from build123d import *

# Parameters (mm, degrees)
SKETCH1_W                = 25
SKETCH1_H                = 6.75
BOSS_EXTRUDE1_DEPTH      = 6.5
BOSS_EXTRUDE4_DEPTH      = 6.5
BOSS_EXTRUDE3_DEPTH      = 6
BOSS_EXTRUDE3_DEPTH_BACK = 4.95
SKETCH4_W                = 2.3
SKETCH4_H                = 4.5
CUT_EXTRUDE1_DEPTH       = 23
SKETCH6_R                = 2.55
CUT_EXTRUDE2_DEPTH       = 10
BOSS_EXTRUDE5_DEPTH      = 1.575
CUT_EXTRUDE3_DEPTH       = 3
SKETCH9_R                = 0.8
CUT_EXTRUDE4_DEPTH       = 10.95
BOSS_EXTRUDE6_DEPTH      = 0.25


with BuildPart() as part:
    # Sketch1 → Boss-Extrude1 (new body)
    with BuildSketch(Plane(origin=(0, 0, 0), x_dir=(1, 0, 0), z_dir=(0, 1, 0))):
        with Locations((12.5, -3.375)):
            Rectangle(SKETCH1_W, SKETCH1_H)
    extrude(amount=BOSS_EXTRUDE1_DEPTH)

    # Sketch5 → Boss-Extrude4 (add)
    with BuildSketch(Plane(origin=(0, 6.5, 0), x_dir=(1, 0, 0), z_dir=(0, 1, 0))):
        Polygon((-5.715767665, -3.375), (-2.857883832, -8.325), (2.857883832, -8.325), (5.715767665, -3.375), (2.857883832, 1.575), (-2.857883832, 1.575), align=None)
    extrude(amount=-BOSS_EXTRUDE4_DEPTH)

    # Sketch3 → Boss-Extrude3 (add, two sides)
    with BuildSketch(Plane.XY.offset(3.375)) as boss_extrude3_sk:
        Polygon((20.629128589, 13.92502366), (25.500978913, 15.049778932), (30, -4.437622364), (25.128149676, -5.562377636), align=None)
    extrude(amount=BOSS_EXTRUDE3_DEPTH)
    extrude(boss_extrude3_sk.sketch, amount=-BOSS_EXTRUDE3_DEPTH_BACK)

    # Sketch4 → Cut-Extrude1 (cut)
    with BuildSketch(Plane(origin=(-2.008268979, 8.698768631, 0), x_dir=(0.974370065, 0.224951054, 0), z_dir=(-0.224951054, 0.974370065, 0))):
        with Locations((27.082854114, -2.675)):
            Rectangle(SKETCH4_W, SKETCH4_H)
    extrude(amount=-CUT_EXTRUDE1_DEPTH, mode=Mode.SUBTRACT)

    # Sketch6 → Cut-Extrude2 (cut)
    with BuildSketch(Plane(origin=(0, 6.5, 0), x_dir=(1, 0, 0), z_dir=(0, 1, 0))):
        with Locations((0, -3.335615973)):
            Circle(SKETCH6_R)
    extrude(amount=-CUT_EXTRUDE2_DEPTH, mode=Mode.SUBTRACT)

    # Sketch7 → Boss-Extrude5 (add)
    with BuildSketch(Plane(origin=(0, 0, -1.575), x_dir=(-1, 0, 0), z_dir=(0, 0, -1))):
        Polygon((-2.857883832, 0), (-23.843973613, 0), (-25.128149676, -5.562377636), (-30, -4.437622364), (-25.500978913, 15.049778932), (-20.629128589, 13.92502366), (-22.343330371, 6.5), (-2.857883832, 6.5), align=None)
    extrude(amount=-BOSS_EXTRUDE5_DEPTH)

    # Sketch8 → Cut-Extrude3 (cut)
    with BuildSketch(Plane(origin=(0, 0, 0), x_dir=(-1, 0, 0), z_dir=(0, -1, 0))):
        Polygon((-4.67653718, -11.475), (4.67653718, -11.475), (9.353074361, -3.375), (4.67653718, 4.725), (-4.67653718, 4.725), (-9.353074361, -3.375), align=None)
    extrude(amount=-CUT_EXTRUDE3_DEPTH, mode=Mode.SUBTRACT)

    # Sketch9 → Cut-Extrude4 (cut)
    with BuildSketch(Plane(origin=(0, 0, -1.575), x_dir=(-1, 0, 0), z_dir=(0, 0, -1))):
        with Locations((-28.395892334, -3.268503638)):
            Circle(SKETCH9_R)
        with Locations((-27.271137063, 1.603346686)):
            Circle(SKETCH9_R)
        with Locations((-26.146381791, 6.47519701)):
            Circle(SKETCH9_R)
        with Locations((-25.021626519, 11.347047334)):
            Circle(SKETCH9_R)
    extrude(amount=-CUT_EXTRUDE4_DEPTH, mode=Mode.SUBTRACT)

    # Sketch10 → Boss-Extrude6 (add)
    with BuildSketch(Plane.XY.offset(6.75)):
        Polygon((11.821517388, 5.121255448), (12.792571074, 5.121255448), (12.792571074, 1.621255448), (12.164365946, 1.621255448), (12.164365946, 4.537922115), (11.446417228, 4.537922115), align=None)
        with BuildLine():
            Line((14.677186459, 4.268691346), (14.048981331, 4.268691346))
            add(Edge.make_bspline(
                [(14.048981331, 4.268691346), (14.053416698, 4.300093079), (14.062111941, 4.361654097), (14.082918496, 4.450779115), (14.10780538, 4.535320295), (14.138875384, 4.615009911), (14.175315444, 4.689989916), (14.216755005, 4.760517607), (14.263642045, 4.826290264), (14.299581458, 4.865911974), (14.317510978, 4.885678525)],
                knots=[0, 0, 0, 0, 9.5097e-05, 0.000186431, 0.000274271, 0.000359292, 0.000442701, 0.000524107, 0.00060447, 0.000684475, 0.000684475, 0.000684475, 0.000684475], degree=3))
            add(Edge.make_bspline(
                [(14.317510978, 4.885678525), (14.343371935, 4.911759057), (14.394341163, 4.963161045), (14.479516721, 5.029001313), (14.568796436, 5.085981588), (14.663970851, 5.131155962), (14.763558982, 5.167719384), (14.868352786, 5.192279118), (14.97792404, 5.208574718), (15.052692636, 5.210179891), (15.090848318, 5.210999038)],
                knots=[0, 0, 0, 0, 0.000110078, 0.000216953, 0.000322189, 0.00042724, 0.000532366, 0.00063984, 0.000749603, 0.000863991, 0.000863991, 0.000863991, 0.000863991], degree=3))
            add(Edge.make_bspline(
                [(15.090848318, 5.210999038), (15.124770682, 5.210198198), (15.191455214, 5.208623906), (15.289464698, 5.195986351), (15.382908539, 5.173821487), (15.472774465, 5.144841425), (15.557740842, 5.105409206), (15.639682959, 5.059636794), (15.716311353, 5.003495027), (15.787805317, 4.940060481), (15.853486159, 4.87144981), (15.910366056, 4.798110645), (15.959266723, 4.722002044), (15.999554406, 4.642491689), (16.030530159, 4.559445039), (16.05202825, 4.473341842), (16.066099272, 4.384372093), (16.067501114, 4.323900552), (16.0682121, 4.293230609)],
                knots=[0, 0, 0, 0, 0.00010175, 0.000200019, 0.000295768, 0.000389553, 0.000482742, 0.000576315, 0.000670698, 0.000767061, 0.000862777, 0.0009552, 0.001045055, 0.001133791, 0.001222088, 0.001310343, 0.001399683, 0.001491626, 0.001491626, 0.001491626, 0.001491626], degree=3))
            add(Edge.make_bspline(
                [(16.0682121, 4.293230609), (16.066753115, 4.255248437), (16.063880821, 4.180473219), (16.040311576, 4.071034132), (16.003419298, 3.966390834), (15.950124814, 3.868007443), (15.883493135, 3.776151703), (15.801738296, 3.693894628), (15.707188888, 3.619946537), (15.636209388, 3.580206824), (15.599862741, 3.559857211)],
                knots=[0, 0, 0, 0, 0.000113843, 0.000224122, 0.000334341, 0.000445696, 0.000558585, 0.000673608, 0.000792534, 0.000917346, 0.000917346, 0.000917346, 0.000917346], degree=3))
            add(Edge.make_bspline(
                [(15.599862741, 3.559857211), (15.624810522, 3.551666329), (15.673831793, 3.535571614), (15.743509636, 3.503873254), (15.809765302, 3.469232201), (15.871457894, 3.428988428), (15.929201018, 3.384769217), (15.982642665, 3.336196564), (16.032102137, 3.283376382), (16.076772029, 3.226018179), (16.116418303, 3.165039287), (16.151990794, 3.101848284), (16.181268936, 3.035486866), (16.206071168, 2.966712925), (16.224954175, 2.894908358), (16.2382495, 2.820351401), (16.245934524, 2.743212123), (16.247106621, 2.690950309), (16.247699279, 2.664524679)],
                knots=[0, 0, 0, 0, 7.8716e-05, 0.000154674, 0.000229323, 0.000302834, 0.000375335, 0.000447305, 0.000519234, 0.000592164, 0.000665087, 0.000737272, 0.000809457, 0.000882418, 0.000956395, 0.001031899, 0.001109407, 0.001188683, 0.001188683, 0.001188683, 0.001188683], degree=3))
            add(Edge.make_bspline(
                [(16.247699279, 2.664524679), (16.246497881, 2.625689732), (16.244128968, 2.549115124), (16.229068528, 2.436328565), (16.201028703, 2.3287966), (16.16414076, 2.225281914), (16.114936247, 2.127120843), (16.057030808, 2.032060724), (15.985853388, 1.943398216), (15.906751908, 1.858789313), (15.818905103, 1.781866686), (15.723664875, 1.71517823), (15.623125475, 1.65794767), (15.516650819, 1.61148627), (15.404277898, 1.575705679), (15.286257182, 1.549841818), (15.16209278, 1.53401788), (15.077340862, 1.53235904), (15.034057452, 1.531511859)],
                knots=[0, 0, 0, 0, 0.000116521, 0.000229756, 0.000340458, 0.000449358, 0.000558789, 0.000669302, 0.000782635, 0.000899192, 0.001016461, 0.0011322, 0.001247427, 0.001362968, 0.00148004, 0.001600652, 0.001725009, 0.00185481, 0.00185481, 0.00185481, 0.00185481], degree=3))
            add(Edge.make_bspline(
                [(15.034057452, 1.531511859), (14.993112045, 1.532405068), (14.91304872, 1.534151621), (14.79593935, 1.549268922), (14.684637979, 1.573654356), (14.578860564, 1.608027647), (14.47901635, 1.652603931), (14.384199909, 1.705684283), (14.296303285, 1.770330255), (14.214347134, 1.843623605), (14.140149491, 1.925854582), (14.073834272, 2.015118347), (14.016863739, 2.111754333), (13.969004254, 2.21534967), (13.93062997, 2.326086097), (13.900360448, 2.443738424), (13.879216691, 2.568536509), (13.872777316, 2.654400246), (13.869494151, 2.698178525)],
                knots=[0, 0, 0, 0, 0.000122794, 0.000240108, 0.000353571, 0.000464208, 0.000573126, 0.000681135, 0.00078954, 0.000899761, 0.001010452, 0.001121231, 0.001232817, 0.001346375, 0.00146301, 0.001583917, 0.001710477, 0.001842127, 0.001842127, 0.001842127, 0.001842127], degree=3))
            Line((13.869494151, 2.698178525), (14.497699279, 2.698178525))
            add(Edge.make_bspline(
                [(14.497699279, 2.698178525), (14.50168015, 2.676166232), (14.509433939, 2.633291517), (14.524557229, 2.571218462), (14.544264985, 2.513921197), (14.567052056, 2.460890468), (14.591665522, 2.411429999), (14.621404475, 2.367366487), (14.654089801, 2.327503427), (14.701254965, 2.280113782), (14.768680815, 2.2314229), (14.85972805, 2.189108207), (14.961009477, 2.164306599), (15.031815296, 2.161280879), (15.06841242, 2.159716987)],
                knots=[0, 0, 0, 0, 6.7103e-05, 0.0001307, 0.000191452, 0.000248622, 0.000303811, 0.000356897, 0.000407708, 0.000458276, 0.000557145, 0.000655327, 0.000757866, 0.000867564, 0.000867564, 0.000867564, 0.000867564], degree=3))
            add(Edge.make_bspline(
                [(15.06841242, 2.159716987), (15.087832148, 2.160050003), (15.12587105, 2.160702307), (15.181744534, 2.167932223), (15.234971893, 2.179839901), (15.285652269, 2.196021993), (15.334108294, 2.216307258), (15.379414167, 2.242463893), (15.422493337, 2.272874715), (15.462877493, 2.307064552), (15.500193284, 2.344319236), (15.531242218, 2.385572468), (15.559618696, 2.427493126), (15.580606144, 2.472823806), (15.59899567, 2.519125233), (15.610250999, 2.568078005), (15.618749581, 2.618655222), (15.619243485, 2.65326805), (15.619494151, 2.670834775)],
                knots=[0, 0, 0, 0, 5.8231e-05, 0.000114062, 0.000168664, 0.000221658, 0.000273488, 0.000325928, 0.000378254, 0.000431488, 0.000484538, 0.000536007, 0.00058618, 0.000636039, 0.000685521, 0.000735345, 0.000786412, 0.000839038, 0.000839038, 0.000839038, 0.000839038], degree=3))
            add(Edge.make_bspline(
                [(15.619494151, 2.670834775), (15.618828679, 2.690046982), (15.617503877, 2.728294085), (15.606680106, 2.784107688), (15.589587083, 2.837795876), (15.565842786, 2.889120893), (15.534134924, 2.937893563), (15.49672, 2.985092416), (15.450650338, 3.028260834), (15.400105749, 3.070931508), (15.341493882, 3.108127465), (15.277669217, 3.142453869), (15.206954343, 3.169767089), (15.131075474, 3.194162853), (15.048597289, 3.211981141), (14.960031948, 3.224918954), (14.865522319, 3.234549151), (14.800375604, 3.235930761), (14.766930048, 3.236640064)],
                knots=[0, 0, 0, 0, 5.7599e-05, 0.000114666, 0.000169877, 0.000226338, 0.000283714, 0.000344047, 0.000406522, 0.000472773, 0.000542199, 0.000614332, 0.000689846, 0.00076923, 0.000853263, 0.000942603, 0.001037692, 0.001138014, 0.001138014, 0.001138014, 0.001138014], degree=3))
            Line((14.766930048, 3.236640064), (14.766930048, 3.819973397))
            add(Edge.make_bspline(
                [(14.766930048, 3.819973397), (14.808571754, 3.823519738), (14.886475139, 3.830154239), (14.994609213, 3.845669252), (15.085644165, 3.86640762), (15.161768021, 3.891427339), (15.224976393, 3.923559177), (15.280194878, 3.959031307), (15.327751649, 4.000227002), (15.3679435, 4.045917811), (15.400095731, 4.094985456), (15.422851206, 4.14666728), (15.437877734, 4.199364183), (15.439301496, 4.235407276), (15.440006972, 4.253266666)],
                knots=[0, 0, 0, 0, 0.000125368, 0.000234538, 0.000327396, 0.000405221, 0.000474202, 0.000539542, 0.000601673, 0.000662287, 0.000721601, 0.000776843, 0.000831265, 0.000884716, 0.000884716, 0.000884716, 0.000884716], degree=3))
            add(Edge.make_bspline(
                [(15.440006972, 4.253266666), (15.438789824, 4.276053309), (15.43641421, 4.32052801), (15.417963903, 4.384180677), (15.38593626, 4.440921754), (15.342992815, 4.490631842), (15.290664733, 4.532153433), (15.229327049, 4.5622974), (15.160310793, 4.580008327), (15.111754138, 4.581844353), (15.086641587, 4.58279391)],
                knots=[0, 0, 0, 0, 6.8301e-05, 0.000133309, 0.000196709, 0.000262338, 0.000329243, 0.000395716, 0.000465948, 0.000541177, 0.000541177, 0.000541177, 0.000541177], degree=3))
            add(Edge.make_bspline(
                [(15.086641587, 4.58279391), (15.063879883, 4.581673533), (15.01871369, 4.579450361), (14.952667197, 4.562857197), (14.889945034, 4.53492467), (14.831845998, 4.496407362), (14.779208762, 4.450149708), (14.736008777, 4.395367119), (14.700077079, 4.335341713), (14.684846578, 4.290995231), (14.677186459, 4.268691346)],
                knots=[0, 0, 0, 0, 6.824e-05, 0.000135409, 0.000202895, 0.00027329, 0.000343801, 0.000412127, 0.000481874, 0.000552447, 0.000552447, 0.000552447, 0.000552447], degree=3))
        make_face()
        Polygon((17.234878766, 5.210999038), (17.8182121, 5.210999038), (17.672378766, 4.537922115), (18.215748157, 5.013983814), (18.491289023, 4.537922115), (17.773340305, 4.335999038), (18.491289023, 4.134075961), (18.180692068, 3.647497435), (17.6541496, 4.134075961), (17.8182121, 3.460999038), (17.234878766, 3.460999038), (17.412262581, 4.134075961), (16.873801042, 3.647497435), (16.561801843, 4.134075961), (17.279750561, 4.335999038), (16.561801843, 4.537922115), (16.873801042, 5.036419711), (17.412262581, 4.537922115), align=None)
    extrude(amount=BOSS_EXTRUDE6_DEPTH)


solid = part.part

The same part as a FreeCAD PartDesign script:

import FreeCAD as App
import Part
import Sketcher
from FreeCAD import Vector
Q = App.Units.Quantity


def add_polygon(sketch, points):
    """Adds a closed chain of lines whose ends are joined by coincident constraints."""
    first, n = sketch.GeometryCount, len(points)
    for a, b in zip(points, points[1:] + points[:1]):
        sketch.addGeometry(Part.LineSegment(App.Vector(*a, 0), App.Vector(*b, 0)), False)
    for i in range(n):
        sketch.addConstraint(Sketcher.Constraint("Coincident", first + i, 2, first + (i + 1) % n, 1))

doc = App.newDocument("Part")
params = doc.addObject("Spreadsheet::Sheet", "Params")
for row, (alias, value) in enumerate([
    ("sketch1_width", "25 mm"),
    ("sketch1_height", "6.75 mm"),
    ("pad1_length", "6.5 mm"),
    ("pad2_length", "6.5 mm"),
    ("sketch3_length", "5 mm"),
    ("sketch3_length2", "20 mm"),
    ("pad3_length", "6 mm"),
    ("pad3_length2", "4.95 mm"),
    ("sketch4_width", "2.3 mm"),
    ("sketch4_height", "4.5 mm"),
    ("pocket1_length", "23 mm"),
    ("sketch5_diameter", "5.1 mm"),
    ("pocket2_length", "10 mm"),
    ("sketch6_length", "5 mm"),
    ("sketch6_length2", "20 mm"),
    ("sketch6_height", "6.5 mm"),
    ("pad4_length", "1.575 mm"),
    ("pocket3_length", "3 mm"),
    ("sketch8_diameter", "1.6 mm"),
    ("pocket4_length", "10.95 mm"),
    ("sketch9_height", "3.5 mm"),
    ("pad5_length", "0.25 mm"),
], start=1):
    params.set(f"A{row}", alias)
    params.set(f"B{row}", "=" + value)
    params.setAlias(f"B{row}", alias)

body = doc.addObject("PartDesign::Body", "Body")

# Sketch on XZ plane
sketch1 = doc.addObject("Sketcher::SketchObject", "Sketch")
body.addObject(sketch1)
sketch1.AttachmentSupport = (doc.XZ_Plane, [""])
sketch1.MapMode = "FlatFace"
add_polygon(sketch1, [(0, 0), (0, 7), (25, 7), (25, 0)])  # lines 0-3
sketch1.addConstraint([
    Sketcher.Constraint("Vertical", 0),
    Sketcher.Constraint("Horizontal", 1),
    Sketcher.Constraint("Vertical", 2),
    Sketcher.Constraint("Horizontal", 3),
    Sketcher.Constraint("Coincident", 3, 2, -1, 1),
    Sketcher.Constraint("DistanceX", 1, 1, 1, 2, Q("25 mm")),
    Sketcher.Constraint("DistanceY", 0, 1, 0, 2, Q("6.75 mm")),
])
sketch1.setExpression("Constraints[9]", "Params.sketch1_width")
sketch1.setExpression("Constraints[10]", "Params.sketch1_height")
pad1 = doc.addObject("PartDesign::Pad", "Pad")
body.addObject(pad1)
pad1.Profile = sketch1
pad1.setExpression("Length", "Params.pad1_length")
pad1.Reversed = True

# Sketch on XZ plane
sketch2 = doc.addObject("Sketcher::SketchObject", "Sketch001")
body.addObject(sketch2)
sketch2.AttachmentSupport = (doc.XZ_Plane, [""])
sketch2.MapMode = "FlatFace"
sketch2.AttachmentOffset = App.Placement(Vector(0, 0, -6.5), App.Rotation())
add_polygon(sketch2, [(-6, 3), (-3, 8), (3, 8), (6, 3), (3, -2), (-3, -2)])  # lines 0-5
sketch2.addConstraint([
    Sketcher.Constraint("Horizontal", 1),
    Sketcher.Constraint("Horizontal", 4),
    Sketcher.Constraint("Symmetric", 2, 2, 5, 2, -2),
    Sketcher.Constraint("Parallel", 0, 3),
    Sketcher.Constraint("Parallel", 2, 5),
    Sketcher.Constraint("Vertical", 1, 2, 3, 2),
    Sketcher.Constraint("Vertical", 0, 2, 4, 2),
    Sketcher.Constraint("Angle", 0, Q("60 deg")),
    Sketcher.Constraint("DistanceY", 3, 2, 1, 2, Q("9.9 mm")),
    Sketcher.Constraint("DistanceY", -1, 1, 0, 2, Q("8.325 mm")),
    Sketcher.Constraint("DistanceX", 1, 1, 1, 2, Q("5.715768 mm")),
])
pad2 = doc.addObject("PartDesign::Pad", "Pad001")
body.addObject(pad2)
pad2.Profile = sketch2
pad2.setExpression("Length", "Params.pad2_length")

# Sketch on XY plane
sketch3 = doc.addObject("Sketcher::SketchObject", "Sketch002")
body.addObject(sketch3)
sketch3.AttachmentSupport = (doc.XY_Plane, [""])
sketch3.MapMode = "FlatFace"
sketch3.AttachmentOffset = App.Placement(Vector(0, 0, 3.375), App.Rotation())
add_polygon(sketch3, [(26, 15), (21, 14), (25, -6), (30, -4)])  # lines 0-3
sketch3.addConstraint([
    Sketcher.Constraint("Perpendicular", 0, 1),
    Sketcher.Constraint("Perpendicular", 1, 2),
    Sketcher.Constraint("Perpendicular", 2, 3),
    Sketcher.Constraint("Angle", 0, Q("-167 deg")),
    Sketcher.Constraint("Distance", 0, Q("5 mm")),
    Sketcher.Constraint("Distance", 1, Q("20 mm")),
    Sketcher.Constraint("DistanceX", -1, 1, 2, 2, Q("30 mm")),
    Sketcher.Constraint("DistanceY", -1, 1, 3, 2, Q("15.049779 mm")),
])
sketch3.setExpression("Constraints[8]", "Params.sketch3_length")
sketch3.setExpression("Constraints[9]", "Params.sketch3_length2")
pad3 = doc.addObject("PartDesign::Pad", "Pad002")
body.addObject(pad3)
pad3.Profile = sketch3
pad3.Type = "TwoLengths"
pad3.setExpression("Length", "Params.pad3_length")
pad3.setExpression("Length2", "Params.pad3_length2")

# Sketch on an angled plane
sketch4 = doc.addObject("Sketcher::SketchObject", "Sketch003")
body.addObject(sketch4)
sketch4.Placement = App.Placement(Vector(-2.008269, 8.698769, 0), App.Rotation(Vector(0.974370065, 0.224951054, 0), Vector(0, 0, -1), Vector(-0.224951054, 0.974370065, 0), "ZXY"))
add_polygon(sketch4, [(25.9, -0.4), (25.9, -4.9), (28.2, -4.9), (28.2, -0.4)])  # lines 0-3
sketch4.addConstraint([
    Sketcher.Constraint("Vertical", 0),
    Sketcher.Constraint("Horizontal", 1),
    Sketcher.Constraint("Vertical", 2),
    Sketcher.Constraint("Horizontal", 3),
    Sketcher.Constraint("DistanceX", 1, 1, 1, 2, Q("2.3 mm")),
    Sketcher.Constraint("DistanceY", 0, 2, 0, 1, Q("4.5 mm")),
    Sketcher.Constraint("DistanceY", 0, 2, -1, 1, Q("4.925 mm")),
    Sketcher.Constraint("DistanceX", -1, 1, 0, 2, Q("25.932854 mm")),
])
sketch4.setExpression("Constraints[8]", "Params.sketch4_width")
sketch4.setExpression("Constraints[9]", "Params.sketch4_height")
pocket1 = doc.addObject("PartDesign::Pocket", "Pocket")
body.addObject(pocket1)
pocket1.Profile = sketch4
pocket1.setExpression("Length", "Params.pocket1_length")

# Sketch on XZ plane
sketch5 = doc.addObject("Sketcher::SketchObject", "Sketch004")
body.addObject(sketch5)
sketch5.AttachmentSupport = (doc.XZ_Plane, [""])
sketch5.MapMode = "FlatFace"
sketch5.AttachmentOffset = App.Placement(Vector(0, 0, -6.5), App.Rotation())
sketch5.addGeometry(Part.Circle(Vector(0, 3.3, 0), Vector(0, 0, 1), 2.5), False)
sketch5.addConstraint([
    Sketcher.Constraint("PointOnObject", 0, 3, -2),
    Sketcher.Constraint("Diameter", 0, Q("5.1 mm")),
    Sketcher.Constraint("DistanceY", -1, 1, 0, 3, Q("3.335616 mm")),
])
sketch5.setExpression("Constraints[1]", "Params.sketch5_diameter")
pocket2 = doc.addObject("PartDesign::Pocket", "Pocket001")
body.addObject(pocket2)
pocket2.Profile = sketch5
pocket2.setExpression("Length", "Params.pocket2_length")
pocket2.Reversed = True

# Sketch on XY plane
sketch6 = doc.addObject("Sketcher::SketchObject", "Sketch005")
body.addObject(sketch6)
sketch6.AttachmentSupport = (doc.XY_Plane, [""])
sketch6.MapMode = "FlatFace"
sketch6.AttachmentOffset = App.Placement(Vector(0, 0, -1.575), App.Rotation())
add_polygon(sketch6, [(24, 0), (3, 0), (3, 6), (22, 6), (21, 14), (26, 15), (30, -4), (25, -6)])  # lines 0-7
sketch6.addConstraint([
    Sketcher.Constraint("Horizontal", 0),
    Sketcher.Constraint("Vertical", 1),
    Sketcher.Constraint("Horizontal", 2),
    Sketcher.Constraint("PointOnObject", 0, 2, -1),
    Sketcher.Constraint("Perpendicular", 3, 4),
    Sketcher.Constraint("Perpendicular", 4, 5),
    Sketcher.Constraint("Perpendicular", 5, 6),
    Sketcher.Constraint("Perpendicular", 6, 7),
    Sketcher.Constraint("Equal", 4, 6),
    Sketcher.Constraint("Angle", 3, Q("103 deg")),
    Sketcher.Constraint("Distance", 4, Q("5 mm")),
    Sketcher.Constraint("Distance", 5, Q("20 mm")),
    Sketcher.Constraint("DistanceY", 1, 1, 1, 2, Q("6.5 mm")),
    Sketcher.Constraint("DistanceX", -1, 1, 5, 2, Q("30 mm")),
    Sketcher.Constraint("DistanceX", 0, 2, 0, 1, Q("20.98609 mm")),
    Sketcher.Constraint("DistanceX", 3, 2, 2, 2, Q("1.714202 mm")),
])
sketch6.setExpression("Constraints[18]", "Params.sketch6_length")
sketch6.setExpression("Constraints[19]", "Params.sketch6_length2")
sketch6.setExpression("Constraints[20]", "Params.sketch6_height")
pad4 = doc.addObject("PartDesign::Pad", "Pad003")
body.addObject(pad4)
pad4.Profile = sketch6
pad4.setExpression("Length", "Params.pad4_length")

# Sketch on XZ plane
sketch7 = doc.addObject("Sketcher::SketchObject", "Sketch006")
body.addObject(sketch7)
sketch7.AttachmentSupport = (doc.XZ_Plane, [""])
sketch7.MapMode = "FlatFace"
add_polygon(sketch7, [(5, 11), (-5, 11), (-9, 3), (-5, -5), (5, -5), (9, 3)])  # lines 0-5
sketch7.addConstraint([
    Sketcher.Constraint("Horizontal", 0),
    Sketcher.Constraint("Horizontal", 3),
    Sketcher.Constraint("Symmetric", 1, 2, 4, 2, -2),
    Sketcher.Constraint("Parallel", 1, 4),
    Sketcher.Constraint("Parallel", 2, 5),
    Sketcher.Constraint("Vertical", 0, 2, 2, 2),
    Sketcher.Constraint("Vertical", 3, 2, 5, 2),
    Sketcher.Constraint("Angle", 1, Q("-120 deg")),
    Sketcher.Constraint("DistanceY", 1, 2, 0, 2, Q("8.1 mm")),
    Sketcher.Constraint("DistanceY", -1, 1, 0, 2, Q("11.475 mm")),
    Sketcher.Constraint("DistanceX", 0, 2, 0, 1, Q("9.353074 mm")),
])
pocket3 = doc.addObject("PartDesign::Pocket", "Pocket002")
body.addObject(pocket3)
pocket3.Profile = sketch7
pocket3.setExpression("Length", "Params.pocket3_length")

# Sketch on XY plane
sketch8 = doc.addObject("Sketcher::SketchObject", "Sketch007")
body.addObject(sketch8)
sketch8.AttachmentSupport = (doc.XY_Plane, [""])
sketch8.MapMode = "FlatFace"
sketch8.AttachmentOffset = App.Placement(Vector(0, 0, -1.575), App.Rotation())
sketch8.addGeometry([
    Part.Circle(Vector(28.4, -3.3, 0), Vector(0, 0, 1), 0.8),
    Part.Circle(Vector(27.3, 1.6, 0), Vector(0, 0, 1), 0.8),
    Part.Circle(Vector(26.1, 6.5, 0), Vector(0, 0, 1), 0.8),
    Part.Circle(Vector(25, 11.3, 0), Vector(0, 0, 1), 0.8),
], False)
sketch8.addConstraint([
    Sketcher.Constraint("Equal", 0, 1),
    Sketcher.Constraint("Equal", 1, 2),
    Sketcher.Constraint("Equal", 2, 3),
    Sketcher.Constraint("Diameter", 0, Q("1.6 mm")),
    Sketcher.Constraint("DistanceY", 0, 3, 2, 3, Q("9.743701 mm")),
    Sketcher.Constraint("DistanceY", 1, 3, 3, 3, Q("9.743701 mm")),
    Sketcher.Constraint("DistanceX", -1, 1, 2, 3, Q("26.146382 mm")),
    Sketcher.Constraint("DistanceY", 0, 3, 1, 3, Q("4.87185 mm")),
    Sketcher.Constraint("DistanceX", 2, 3, 0, 3, Q("2.249511 mm")),
    Sketcher.Constraint("DistanceX", 3, 3, 1, 3, Q("2.249511 mm")),
    Sketcher.Constraint("DistanceY", 0, 3, -1, 1, Q("3.268504 mm")),
    Sketcher.Constraint("DistanceX", -1, 1, 1, 3, Q("27.271137 mm")),
])
sketch8.setExpression("Constraints[3]", "Params.sketch8_diameter")
pocket4 = doc.addObject("PartDesign::Pocket", "Pocket003")
body.addObject(pocket4)
pocket4.Profile = sketch8
pocket4.setExpression("Length", "Params.pocket4_length")
pocket4.Reversed = True

# Sketch on XY plane
sketch9 = doc.addObject("Sketcher::SketchObject", "Sketch008")
body.addObject(sketch9)
sketch9.AttachmentSupport = (doc.XY_Plane, [""])
sketch9.MapMode = "FlatFace"
sketch9.AttachmentOffset = App.Placement(Vector(0, 0, 6.75), App.Rotation())
add_polygon(sketch9, [(12.792571, 5.121255), (11.821517, 5.121255), (11.446417, 4.537922), (12.164366, 4.537922), (12.164366, 1.621255), (12.792571, 1.621255)])  # lines 0-5
sketch9.addGeometry(Part.LineSegment(Vector(14.048981, 4.268691, 0), Vector(14.677186, 4.268691, 0)), False)  # 6
sketch9.addGeometry(Part.BSplineCurve([Vector(15.086642, 4.582794, 0), Vector(15.06388, 4.581674, 0), Vector(15.018714, 4.57945, 0), Vector(14.952667, 4.562857, 0), Vector(14.889945, 4.534925, 0), Vector(14.831846, 4.496407, 0), Vector(14.779209, 4.45015, 0), Vector(14.736009, 4.395367, 0), Vector(14.700077, 4.335342, 0), Vector(14.684847, 4.290995, 0), Vector(14.677186, 4.268691, 0)], [4, 1, 1, 1, 1, 1, 1, 1, 4], [0, 0.00006824, 0.000135409, 0.000202895, 0.00027329, 0.000343801, 0.000412127, 0.000481874, 0.000552447], False, 3, [1, 1, 1, 1, 1, 1, 1, 1, 1, 1, 1], False), False)  # 7
sketch9.addGeometry(Part.BSplineCurve([Vector(15.440007, 4.253267, 0), Vector(15.43879, 4.276053, 0), Vector(15.436414, 4.320528, 0), Vector(15.417964, 4.384181, 0), Vector(15.385936, 4.440922, 0), Vector(15.342993, 4.490632, 0), Vector(15.290665, 4.532153, 0), Vector(15.229327, 4.562297, 0), Vector(15.160311, 4.580008, 0), Vector(15.111754, 4.581844, 0), Vector(15.086642, 4.582794, 0)], [4, 1, 1, 1, 1, 1, 1, 1, 4], [0, 0.000068301, 0.000133309, 0.000196709, 0.000262338, 0.000329243, 0.000395716, 0.000465948, 0.000541177], False, 3, [1, 1, 1, 1, 1, 1, 1, 1, 1, 1, 1], False), False)  # 8
sketch9.addGeometry(Part.BSplineCurve([Vector(14.76693, 3.819973, 0), Vector(14.808572, 3.82352, 0), Vector(14.886475, 3.830154, 0), Vector(14.994609, 3.845669, 0), Vector(15.085644, 3.866408, 0), Vector(15.161768, 3.891427, 0), Vector(15.224976, 3.923559, 0), Vector(15.280195, 3.959031, 0), Vector(15.327752, 4.000227, 0), Vector(15.367944, 4.045918, 0), Vector(15.400096, 4.094985, 0), Vector(15.422851, 4.146667, 0), Vector(15.437878, 4.199364, 0), Vector(15.439301, 4.235407, 0), Vector(15.440007, 4.253267, 0)], [4, 1, 1, 1, 1, 1, 1, 1, 1, 1, 1, 1, 4], [0, 0.000125368, 0.000234538, 0.000327396, 0.000405221, 0.000474202, 0.000539542, 0.000601673, 0.000662287, 0.000721601, 0.000776843, 0.000831265, 0.000884716], False, 3, [1, 1, 1, 1, 1, 1, 1, 1, 1, 1, 1, 1, 1, 1, 1], False), False)  # 9
sketch9.addGeometry(Part.LineSegment(Vector(14.76693, 3.819973, 0), Vector(14.76693, 3.23664, 0)), False)  # 10
sketch9.addGeometry(Part.BSplineCurve([Vector(15.619494, 2.670835, 0), Vector(15.618829, 2.690047, 0), Vector(15.617504, 2.728294, 0), Vector(15.60668, 2.784108, 0), Vector(15.589587, 2.837796, 0), Vector(15.565843, 2.889121, 0), Vector(15.534135, 2.937894, 0), Vector(15.49672, 2.985092, 0), Vector(15.45065, 3.028261, 0), Vector(15.400106, 3.070932, 0), Vector(15.341494, 3.108127, 0), Vector(15.277669, 3.142454, 0), Vector(15.206954, 3.169767, 0), Vector(15.131075, 3.194163, 0), Vector(15.048597, 3.211981, 0), Vector(14.960032, 3.224919, 0), Vector(14.865522, 3.234549, 0), Vector(14.800376, 3.235931, 0), Vector(14.76693, 3.23664, 0)], [4, 1, 1, 1, 1, 1, 1, 1, 1, 1, 1, 1, 1, 1, 1, 1, 4], [0, 0.000057599, 0.000114666, 0.000169877, 0.000226338, 0.000283714, 0.000344047, 0.000406522, 0.000472773, 0.000542199, 0.000614332, 0.000689846, 0.00076923, 0.000853263, 0.000942603, 0.001037692, 0.001138014], False, 3, [1, 1, 1, 1, 1, 1, 1, 1, 1, 1, 1, 1, 1, 1, 1, 1, 1, 1, 1], False), False)  # 11
sketch9.addGeometry(Part.BSplineCurve([Vector(15.068412, 2.159717, 0), Vector(15.087832, 2.16005, 0), Vector(15.125871, 2.160702, 0), Vector(15.181745, 2.167932, 0), Vector(15.234972, 2.17984, 0), Vector(15.285652, 2.196022, 0), Vector(15.334108, 2.216307, 0), Vector(15.379414, 2.242464, 0), Vector(15.422493, 2.272875, 0), Vector(15.462877, 2.307065, 0), Vector(15.500193, 2.344319, 0), Vector(15.531242, 2.385572, 0), Vector(15.559619, 2.427493, 0), Vector(15.580606, 2.472824, 0), Vector(15.598996, 2.519125, 0), Vector(15.610251, 2.568078, 0), Vector(15.61875, 2.618655, 0), Vector(15.619243, 2.653268, 0), Vector(15.619494, 2.670835, 0)], [4, 1, 1, 1, 1, 1, 1, 1, 1, 1, 1, 1, 1, 1, 1, 1, 4], [0, 0.000058231, 0.000114062, 0.000168664, 0.000221658, 0.000273488, 0.000325928, 0.000378254, 0.000431488, 0.000484538, 0.000536007, 0.00058618, 0.000636039, 0.000685521, 0.000735345, 0.000786412, 0.000839038], False, 3, [1, 1, 1, 1, 1, 1, 1, 1, 1, 1, 1, 1, 1, 1, 1, 1, 1, 1, 1], False), False)  # 12
sketch9.addGeometry(Part.BSplineCurve([Vector(14.497699, 2.698179, 0), Vector(14.50168, 2.676166, 0), Vector(14.509434, 2.633292, 0), Vector(14.524557, 2.571218, 0), Vector(14.544265, 2.513921, 0), Vector(14.567052, 2.46089, 0), Vector(14.591666, 2.41143, 0), Vector(14.621404, 2.367366, 0), Vector(14.65409, 2.327503, 0), Vector(14.701255, 2.280114, 0), Vector(14.768681, 2.231423, 0), Vector(14.859728, 2.189108, 0), Vector(14.961009, 2.164307, 0), Vector(15.031815, 2.161281, 0), Vector(15.068412, 2.159717, 0)], [4, 1, 1, 1, 1, 1, 1, 1, 1, 1, 1, 1, 4], [0, 0.000067103, 0.0001307, 0.000191452, 0.000248622, 0.000303811, 0.000356897, 0.000407708, 0.000458276, 0.000557145, 0.000655327, 0.000757866, 0.000867564], False, 3, [1, 1, 1, 1, 1, 1, 1, 1, 1, 1, 1, 1, 1, 1, 1], False), False)  # 13
sketch9.addGeometry(Part.LineSegment(Vector(14.497699, 2.698179, 0), Vector(13.869494, 2.698179, 0)), False)  # 14
sketch9.addGeometry(Part.BSplineCurve([Vector(15.034057, 1.531512, 0), Vector(14.993112, 1.532405, 0), Vector(14.913049, 1.534152, 0), Vector(14.795939, 1.549269, 0), Vector(14.684638, 1.573654, 0), Vector(14.578861, 1.608028, 0), Vector(14.479016, 1.652604, 0), Vector(14.3842, 1.705684, 0), Vector(14.296303, 1.77033, 0), Vector(14.214347, 1.843624, 0), Vector(14.140149, 1.925855, 0), Vector(14.073834, 2.015118, 0), Vector(14.016864, 2.111754, 0), Vector(13.969004, 2.21535, 0), Vector(13.93063, 2.326086, 0), Vector(13.90036, 2.443738, 0), Vector(13.879217, 2.568537, 0), Vector(13.872777, 2.6544, 0), Vector(13.869494, 2.698179, 0)], [4, 1, 1, 1, 1, 1, 1, 1, 1, 1, 1, 1, 1, 1, 1, 1, 4], [0, 0.000122794, 0.000240108, 0.000353571, 0.000464208, 0.000573126, 0.000681135, 0.00078954, 0.000899761, 0.001010452, 0.001121231, 0.001232817, 0.001346375, 0.00146301, 0.001583917, 0.001710477, 0.001842127], False, 3, [1, 1, 1, 1, 1, 1, 1, 1, 1, 1, 1, 1, 1, 1, 1, 1, 1, 1, 1], False), False)  # 15
sketch9.addGeometry(Part.BSplineCurve([Vector(16.247699, 2.664525, 0), Vector(16.246498, 2.62569, 0), Vector(16.244129, 2.549115, 0), Vector(16.229069, 2.436329, 0), Vector(16.201029, 2.328797, 0), Vector(16.164141, 2.225282, 0), Vector(16.114936, 2.127121, 0), Vector(16.057031, 2.032061, 0), Vector(15.985853, 1.943398, 0), Vector(15.906752, 1.858789, 0), Vector(15.818905, 1.781867, 0), Vector(15.723665, 1.715178, 0), Vector(15.623125, 1.657948, 0), Vector(15.516651, 1.611486, 0), Vector(15.404278, 1.575706, 0), Vector(15.286257, 1.549842, 0), Vector(15.162093, 1.534018, 0), Vector(15.077341, 1.532359, 0), Vector(15.034057, 1.531512, 0)], [4, 1, 1, 1, 1, 1, 1, 1, 1, 1, 1, 1, 1, 1, 1, 1, 4], [0, 0.000116521, 0.000229756, 0.000340458, 0.000449358, 0.000558789, 0.000669302, 0.000782635, 0.000899192, 0.001016461, 0.0011322, 0.001247427, 0.001362968, 0.00148004, 0.001600652, 0.001725009, 0.00185481], False, 3, [1, 1, 1, 1, 1, 1, 1, 1, 1, 1, 1, 1, 1, 1, 1, 1, 1, 1, 1], False), False)  # 16
sketch9.addGeometry(Part.BSplineCurve([Vector(15.599863, 3.559857, 0), Vector(15.624811, 3.551666, 0), Vector(15.673832, 3.535572, 0), Vector(15.74351, 3.503873, 0), Vector(15.809765, 3.469232, 0), Vector(15.871458, 3.428988, 0), Vector(15.929201, 3.384769, 0), Vector(15.982643, 3.336197, 0), Vector(16.032102, 3.283376, 0), Vector(16.076772, 3.226018, 0), Vector(16.116418, 3.165039, 0), Vector(16.151991, 3.101848, 0), Vector(16.181269, 3.035487, 0), Vector(16.206071, 2.966713, 0), Vector(16.224954, 2.894908, 0), Vector(16.238249, 2.820351, 0), Vector(16.245935, 2.743212, 0), Vector(16.247107, 2.69095, 0), Vector(16.247699, 2.664525, 0)], [4, 1, 1, 1, 1, 1, 1, 1, 1, 1, 1, 1, 1, 1, 1, 1, 4], [0, 0.000078716, 0.000154674, 0.000229323, 0.000302834, 0.000375335, 0.000447305, 0.000519234, 0.000592164, 0.000665087, 0.000737272, 0.000809457, 0.000882418, 0.000956395, 0.001031899, 0.001109407, 0.001188683], False, 3, [1, 1, 1, 1, 1, 1, 1, 1, 1, 1, 1, 1, 1, 1, 1, 1, 1, 1, 1], False), False)  # 17
sketch9.addGeometry(Part.BSplineCurve([Vector(16.068212, 4.293231, 0), Vector(16.066753, 4.255248, 0), Vector(16.063881, 4.180473, 0), Vector(16.040312, 4.071034, 0), Vector(16.003419, 3.966391, 0), Vector(15.950125, 3.868007, 0), Vector(15.883493, 3.776152, 0), Vector(15.801738, 3.693895, 0), Vector(15.707189, 3.619947, 0), Vector(15.636209, 3.580207, 0), Vector(15.599863, 3.559857, 0)], [4, 1, 1, 1, 1, 1, 1, 1, 4], [0, 0.000113843, 0.000224122, 0.000334341, 0.000445696, 0.000558585, 0.000673608, 0.000792534, 0.000917346], False, 3, [1, 1, 1, 1, 1, 1, 1, 1, 1, 1, 1], False), False)  # 18
sketch9.addGeometry(Part.BSplineCurve([Vector(15.090848, 5.210999, 0), Vector(15.124771, 5.210198, 0), Vector(15.191455, 5.208624, 0), Vector(15.289465, 5.195986, 0), Vector(15.382909, 5.173821, 0), Vector(15.472774, 5.144841, 0), Vector(15.557741, 5.105409, 0), Vector(15.639683, 5.059637, 0), Vector(15.716311, 5.003495, 0), Vector(15.787805, 4.94006, 0), Vector(15.853486, 4.87145, 0), Vector(15.910366, 4.798111, 0), Vector(15.959267, 4.722002, 0), Vector(15.999554, 4.642492, 0), Vector(16.03053, 4.559445, 0), Vector(16.052028, 4.473342, 0), Vector(16.066099, 4.384372, 0), Vector(16.067501, 4.323901, 0), Vector(16.068212, 4.293231, 0)], [4, 1, 1, 1, 1, 1, 1, 1, 1, 1, 1, 1, 1, 1, 1, 1, 4], [0, 0.00010175, 0.000200019, 0.000295768, 0.000389553, 0.000482742, 0.000576315, 0.000670698, 0.000767061, 0.000862777, 0.0009552, 0.001045055, 0.001133791, 0.001222088, 0.001310343, 0.001399683, 0.001491626], False, 3, [1, 1, 1, 1, 1, 1, 1, 1, 1, 1, 1, 1, 1, 1, 1, 1, 1, 1, 1], False), False)  # 19
sketch9.addGeometry(Part.BSplineCurve([Vector(14.317511, 4.885679, 0), Vector(14.343372, 4.911759, 0), Vector(14.394341, 4.963161, 0), Vector(14.479517, 5.029001, 0), Vector(14.568796, 5.085982, 0), Vector(14.663971, 5.131156, 0), Vector(14.763559, 5.167719, 0), Vector(14.868353, 5.192279, 0), Vector(14.977924, 5.208575, 0), Vector(15.052693, 5.21018, 0), Vector(15.090848, 5.210999, 0)], [4, 1, 1, 1, 1, 1, 1, 1, 4], [0, 0.000110078, 0.000216953, 0.000322189, 0.00042724, 0.000532366, 0.00063984, 0.000749603, 0.000863991], False, 3, [1, 1, 1, 1, 1, 1, 1, 1, 1, 1, 1], False), False)  # 20
sketch9.addGeometry(Part.BSplineCurve([Vector(14.048981, 4.268691, 0), Vector(14.053417, 4.300093, 0), Vector(14.062112, 4.361654, 0), Vector(14.082918, 4.450779, 0), Vector(14.107805, 4.53532, 0), Vector(14.138875, 4.61501, 0), Vector(14.175315, 4.68999, 0), Vector(14.216755, 4.760518, 0), Vector(14.263642, 4.82629, 0), Vector(14.299581, 4.865912, 0), Vector(14.317511, 4.885679, 0)], [4, 1, 1, 1, 1, 1, 1, 1, 4], [0, 0.000095097, 0.000186431, 0.000274271, 0.000359292, 0.000442701, 0.000524107, 0.00060447, 0.000684475], False, 3, [1, 1, 1, 1, 1, 1, 1, 1, 1, 1, 1], False), False)  # 21
add_polygon(sketch9, [(17.818212, 5.210999), (17.234879, 5.210999), (17.412263, 4.537922), (16.873801, 5.03642), (16.561802, 4.537922), (17.279751, 4.335999), (16.561802, 4.134076), (16.873801, 3.647497), (17.412263, 4.134076), (17.234879, 3.460999), (17.818212, 3.460999), (17.65415, 4.134076), (18.180692, 3.647497), (18.491289, 4.134076), (17.77334, 4.335999), (18.491289, 4.537922), (18.215748, 5.013984), (17.672379, 4.537922)])  # lines 22-39
sketch9.addConstraint([
    Sketcher.Constraint("Block", 7),
    Sketcher.Constraint("Block", 8),
    Sketcher.Constraint("Block", 9),
    Sketcher.Constraint("Block", 11),
    Sketcher.Constraint("Block", 12),
    Sketcher.Constraint("Block", 13),
    Sketcher.Constraint("Block", 15),
    Sketcher.Constraint("Block", 16),
    Sketcher.Constraint("Block", 17),
    Sketcher.Constraint("Block", 18),
    Sketcher.Constraint("Block", 19),
    Sketcher.Constraint("Block", 20),
    Sketcher.Constraint("Block", 21),
    Sketcher.Constraint("Coincident", 6, 2, 7, 2),
    Sketcher.Constraint("Coincident", 9, 1, 10, 1),
    Sketcher.Constraint("Coincident", 10, 2, 11, 2),
    Sketcher.Constraint("Coincident", 13, 1, 14, 1),
    Sketcher.Constraint("Coincident", 14, 2, 15, 2),
    Sketcher.Constraint("Coincident", 21, 1, 6, 1),
    Sketcher.Constraint("Horizontal", 0),
    Sketcher.Constraint("Horizontal", 2),
    Sketcher.Constraint("Vertical", 3),
    Sketcher.Constraint("Horizontal", 4),
    Sketcher.Constraint("Vertical", 5),
    Sketcher.Constraint("Horizontal", 22),
    Sketcher.Constraint("Horizontal", 31),
    Sketcher.Constraint("DistanceY", 5, 1, 5, 2, Q("3.5 mm")),
    Sketcher.Constraint("DistanceY", -1, 1, 22, 2, Q("5.210999 mm")),
    Sketcher.Constraint("DistanceY", -1, 1, 26, 2, Q("4.335999 mm")),
    Sketcher.Constraint("DistanceY", -1, 1, 30, 2, Q("3.460999 mm")),
    Sketcher.Constraint("DistanceY", -1, 1, 35, 2, Q("4.335999 mm")),
    Sketcher.Constraint("DistanceX", 25, 2, 24, 2, Q("0.311999 mm")),
    Sketcher.Constraint("DistanceX", 27, 2, 24, 2, Q("0.311999 mm")),
    Sketcher.Constraint("DistanceX", 27, 2, 28, 2, Q("0.311999 mm")),
    Sketcher.Constraint("DistanceX", 2, 1, 2, 2, Q("0.717949 mm")),
    Sketcher.Constraint("DistanceX", -1, 1, 24, 2, Q("16.873801 mm")),
    Sketcher.Constraint("DistanceX", 1, 2, 0, 2, Q("0.3751 mm")),
    Sketcher.Constraint("DistanceY", 28, 2, 26, 2, Q("0.688502 mm")),
    Sketcher.Constraint("DistanceX", 26, 2, 32, 2, Q("0.374399 mm")),
    Sketcher.Constraint("DistanceY", 31, 2, 33, 2, Q("0.186498 mm")),
    Sketcher.Constraint("Distance", 23, Q("0.696059 mm")),
    Sketcher.Constraint("Distance", 29, Q("0.725741 mm")),
    Sketcher.Constraint("Distance", 30, Q("0.696059 mm")),
    Sketcher.Constraint("Distance", 33, Q("0.716942 mm")),
    Sketcher.Constraint("Distance", 34, Q("0.57726 mm")),
    Sketcher.Constraint("DistanceX", 0, 2, 0, 1, Q("0.971054 mm")),
    Sketcher.Constraint("DistanceX", 22, 2, 22, 1, Q("0.583333 mm")),
    Sketcher.Constraint("DistanceX", 31, 1, 31, 2, Q("0.583333 mm")),
    Sketcher.Constraint("DistanceY", 3, 2, 3, 1, Q("2.916667 mm")),
    Sketcher.Constraint("DistanceX", -1, 1, 4, 2, Q("12.792571 mm")),
    Sketcher.Constraint("DistanceX", -1, 1, 22, 2, Q("17.234879 mm")),
    Sketcher.Constraint("DistanceY", -1, 1, 24, 2, Q("5.03642 mm")),
    Sketcher.Constraint("DistanceX", -1, 1, 26, 2, Q("17.279751 mm")),
    Sketcher.Constraint("DistanceX", -1, 1, 30, 2, Q("17.234879 mm")),
    Sketcher.Constraint("DistanceX", -1, 1, 34, 2, Q("18.491289 mm")),
    Sketcher.Constraint("DistanceX", -1, 1, 35, 2, Q("17.77334 mm")),
    Sketcher.Constraint("DistanceX", -1, 1, 36, 2, Q("18.491289 mm")),
    Sketcher.Constraint("DistanceX", -1, 1, 37, 2, Q("18.215748 mm")),
    Sketcher.Constraint("DistanceX", -1, 1, 38, 2, Q("17.672379 mm")),
    Sketcher.Constraint("DistanceY", 6, 2, 2, 2, Q("0.269231 mm")),
    Sketcher.Constraint("DistanceY", 6, 2, 23, 2, Q("0.269231 mm")),
    Sketcher.Constraint("DistanceY", 6, 2, 25, 2, Q("0.269231 mm")),
    Sketcher.Constraint("DistanceY", 28, 2, 27, 2, Q("0.486579 mm")),
    Sketcher.Constraint("DistanceX", 31, 2, 33, 2, Q("0.36248 mm")),
    Sketcher.Constraint("DistanceY", 36, 2, 37, 2, Q("0.476062 mm")),
    Sketcher.Constraint("DistanceY", 23, 2, 37, 2, Q("0.476062 mm")),
    Sketcher.Constraint("Distance", 38, Q("0.722416 mm")),
])
sketch9.setExpression("Constraints[50]", "Params.sketch9_height")
pad5 = doc.addObject("PartDesign::Pad", "Pad004")
body.addObject(pad5)
pad5.Profile = sketch9
pad5.setExpression("Length", "Params.pad5_length")

doc.recompute()
